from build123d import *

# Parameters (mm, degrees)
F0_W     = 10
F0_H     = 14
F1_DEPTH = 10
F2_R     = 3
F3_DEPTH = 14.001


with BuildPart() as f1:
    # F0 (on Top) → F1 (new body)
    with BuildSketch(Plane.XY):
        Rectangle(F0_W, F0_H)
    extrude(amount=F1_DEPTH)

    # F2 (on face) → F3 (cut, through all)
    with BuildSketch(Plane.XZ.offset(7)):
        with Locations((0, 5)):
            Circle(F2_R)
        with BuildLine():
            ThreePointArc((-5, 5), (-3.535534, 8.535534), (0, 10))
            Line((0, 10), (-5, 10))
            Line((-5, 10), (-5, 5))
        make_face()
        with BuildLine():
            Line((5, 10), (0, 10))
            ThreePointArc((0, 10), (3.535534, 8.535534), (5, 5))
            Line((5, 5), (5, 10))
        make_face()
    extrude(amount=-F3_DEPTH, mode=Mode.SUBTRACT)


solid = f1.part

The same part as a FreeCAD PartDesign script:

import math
import FreeCAD as App
import Part
import Sketcher
from FreeCAD import Vector


def add_polygon(sketch, points):
    """Adds a closed chain of lines whose ends are joined by coincident constraints."""
    first, n = sketch.GeometryCount, len(points)
    for a, b in zip(points, points[1:] + points[:1]):
        sketch.addGeometry(Part.LineSegment(App.Vector(*a, 0), App.Vector(*b, 0)), False)
    for i in range(n):
        sketch.addConstraint(Sketcher.Constraint("Coincident", first + i, 2, first + (i + 1) % n, 1))

doc = App.newDocument("Part")
params = doc.addObject("Spreadsheet::Sheet", "Params")
for row, (alias, value) in enumerate([
    ("sketch1_width", "10 mm"),
    ("sketch1_height", "14 mm"),
    ("pad1_length", "10 mm"),
    ("sketch2_diameter", "6 mm"),
    ("sketch2_radius", "5 mm"),
], start=1):
    params.set(f"A{row}", alias)
    params.set(f"B{row}", "=" + value)
    params.setAlias(f"B{row}", alias)

body = doc.addObject("PartDesign::Body", "Body")

# Sketch on XY plane
sketch1 = doc.addObject("Sketcher::SketchObject", "Sketch")
body.addObject(sketch1)
sketch1.AttachmentSupport = (doc.XY_Plane, [""])
sketch1.MapMode = "FlatFace"
add_polygon(sketch1, [(-5, 7), (-5, -7), (5, -7), (5, 7)])  # lines 0-3
sketch1.addConstraint([
    Sketcher.Constraint("Vertical", 0),
    Sketcher.Constraint("Horizontal", 1),
    Sketcher.Constraint("Vertical", 2),
    Sketcher.Constraint("Horizontal", 3),
    Sketcher.Constraint("Symmetric", 0, 2, 2, 2, -1, 1),
    Sketcher.Constraint("DistanceX", 1, 1, 1, 2, 10.0),
    Sketcher.Constraint("DistanceY", 0, 2, 0, 1, 14.0),
])
sketch1.setExpression("Constraints[9]", "Params.sketch1_width")
sketch1.setExpression("Constraints[10]", "Params.sketch1_height")
pad1 = doc.addObject("PartDesign::Pad", "Pad")
body.addObject(pad1)
pad1.Profile = sketch1
pad1.setExpression("Length", "Params.pad1_length")

# Sketch on XZ plane
sketch2 = doc.addObject("Sketcher::SketchObject", "Sketch001")
body.addObject(sketch2)
sketch2.AttachmentSupport = (doc.XZ_Plane, [""])
sketch2.MapMode = "FlatFace"
sketch2.AttachmentOffset = App.Placement(Vector(0, 0, 7), App.Rotation())
sketch2.addGeometry([
    Part.Circle(Vector(0, 5, 0), Vector(0, 0, 1), 3),  # 0
    Part.ArcOfCircle(Part.Circle(Vector(0, 5, 0), Vector(0, 0, 1), 5), math.radians(89.999996), math.radians(180.000004)),  # 1
    Part.LineSegment(Vector(0, 10, 0), Vector(-5, 10, 0)),  # 2
    Part.LineSegment(Vector(-5, 10, 0), Vector(-5, 5, 0)),  # 3
    Part.LineSegment(Vector(5, 10, 0), Vector(0, 10, 0)),  # 4
    Part.ArcOfCircle(Part.Circle(Vector(0, 5, 0), Vector(0, 0, 1), 5), math.radians(-0.000004), math.radians(90.000004)),  # 5
    Part.LineSegment(Vector(5, 5, 0), Vector(5, 10, 0)),  # 6
], False)
sketch2.addConstraint([
    Sketcher.Constraint("Tangent", 1, 1, 2, 1),
    Sketcher.Constraint("Coincident", 2, 2, 3, 1),
    Sketcher.Constraint("Tangent", 3, 2, 1, 2),
    Sketcher.Constraint("Tangent", 4, 2, 5, 2),
    Sketcher.Constraint("Tangent", 5, 1, 6, 1),
    Sketcher.Constraint("Coincident", 6, 2, 4, 1),
    Sketcher.Constraint("Horizontal", 2),
    Sketcher.Constraint("Vertical", 3),
    Sketcher.Constraint("Horizontal", 4),
    Sketcher.Constraint("Vertical", 6),
    Sketcher.Constraint("Coincident", 1, 3, 0, 3),
    Sketcher.Constraint("Coincident", 5, 3, 0, 3),
    Sketcher.Constraint("Equal", 1, 5),
    Sketcher.Constraint("PointOnObject", 0, 3, -2),
    Sketcher.Constraint("Diameter", 0, 6.0),
    Sketcher.Constraint("Radius", 1, 5.0),
    Sketcher.Constraint("DistanceY", -1, 1, 0, 3, 5.0),
])
sketch2.setExpression("Constraints[14]", "Params.sketch2_diameter")
sketch2.setExpression("Constraints[15]", "Params.sketch2_radius")
pocket1 = doc.addObject("PartDesign::Pocket", "Pocket")
body.addObject(pocket1)
pocket1.Profile = sketch2
pocket1.Type = "ThroughAll"

doc.recompute()
